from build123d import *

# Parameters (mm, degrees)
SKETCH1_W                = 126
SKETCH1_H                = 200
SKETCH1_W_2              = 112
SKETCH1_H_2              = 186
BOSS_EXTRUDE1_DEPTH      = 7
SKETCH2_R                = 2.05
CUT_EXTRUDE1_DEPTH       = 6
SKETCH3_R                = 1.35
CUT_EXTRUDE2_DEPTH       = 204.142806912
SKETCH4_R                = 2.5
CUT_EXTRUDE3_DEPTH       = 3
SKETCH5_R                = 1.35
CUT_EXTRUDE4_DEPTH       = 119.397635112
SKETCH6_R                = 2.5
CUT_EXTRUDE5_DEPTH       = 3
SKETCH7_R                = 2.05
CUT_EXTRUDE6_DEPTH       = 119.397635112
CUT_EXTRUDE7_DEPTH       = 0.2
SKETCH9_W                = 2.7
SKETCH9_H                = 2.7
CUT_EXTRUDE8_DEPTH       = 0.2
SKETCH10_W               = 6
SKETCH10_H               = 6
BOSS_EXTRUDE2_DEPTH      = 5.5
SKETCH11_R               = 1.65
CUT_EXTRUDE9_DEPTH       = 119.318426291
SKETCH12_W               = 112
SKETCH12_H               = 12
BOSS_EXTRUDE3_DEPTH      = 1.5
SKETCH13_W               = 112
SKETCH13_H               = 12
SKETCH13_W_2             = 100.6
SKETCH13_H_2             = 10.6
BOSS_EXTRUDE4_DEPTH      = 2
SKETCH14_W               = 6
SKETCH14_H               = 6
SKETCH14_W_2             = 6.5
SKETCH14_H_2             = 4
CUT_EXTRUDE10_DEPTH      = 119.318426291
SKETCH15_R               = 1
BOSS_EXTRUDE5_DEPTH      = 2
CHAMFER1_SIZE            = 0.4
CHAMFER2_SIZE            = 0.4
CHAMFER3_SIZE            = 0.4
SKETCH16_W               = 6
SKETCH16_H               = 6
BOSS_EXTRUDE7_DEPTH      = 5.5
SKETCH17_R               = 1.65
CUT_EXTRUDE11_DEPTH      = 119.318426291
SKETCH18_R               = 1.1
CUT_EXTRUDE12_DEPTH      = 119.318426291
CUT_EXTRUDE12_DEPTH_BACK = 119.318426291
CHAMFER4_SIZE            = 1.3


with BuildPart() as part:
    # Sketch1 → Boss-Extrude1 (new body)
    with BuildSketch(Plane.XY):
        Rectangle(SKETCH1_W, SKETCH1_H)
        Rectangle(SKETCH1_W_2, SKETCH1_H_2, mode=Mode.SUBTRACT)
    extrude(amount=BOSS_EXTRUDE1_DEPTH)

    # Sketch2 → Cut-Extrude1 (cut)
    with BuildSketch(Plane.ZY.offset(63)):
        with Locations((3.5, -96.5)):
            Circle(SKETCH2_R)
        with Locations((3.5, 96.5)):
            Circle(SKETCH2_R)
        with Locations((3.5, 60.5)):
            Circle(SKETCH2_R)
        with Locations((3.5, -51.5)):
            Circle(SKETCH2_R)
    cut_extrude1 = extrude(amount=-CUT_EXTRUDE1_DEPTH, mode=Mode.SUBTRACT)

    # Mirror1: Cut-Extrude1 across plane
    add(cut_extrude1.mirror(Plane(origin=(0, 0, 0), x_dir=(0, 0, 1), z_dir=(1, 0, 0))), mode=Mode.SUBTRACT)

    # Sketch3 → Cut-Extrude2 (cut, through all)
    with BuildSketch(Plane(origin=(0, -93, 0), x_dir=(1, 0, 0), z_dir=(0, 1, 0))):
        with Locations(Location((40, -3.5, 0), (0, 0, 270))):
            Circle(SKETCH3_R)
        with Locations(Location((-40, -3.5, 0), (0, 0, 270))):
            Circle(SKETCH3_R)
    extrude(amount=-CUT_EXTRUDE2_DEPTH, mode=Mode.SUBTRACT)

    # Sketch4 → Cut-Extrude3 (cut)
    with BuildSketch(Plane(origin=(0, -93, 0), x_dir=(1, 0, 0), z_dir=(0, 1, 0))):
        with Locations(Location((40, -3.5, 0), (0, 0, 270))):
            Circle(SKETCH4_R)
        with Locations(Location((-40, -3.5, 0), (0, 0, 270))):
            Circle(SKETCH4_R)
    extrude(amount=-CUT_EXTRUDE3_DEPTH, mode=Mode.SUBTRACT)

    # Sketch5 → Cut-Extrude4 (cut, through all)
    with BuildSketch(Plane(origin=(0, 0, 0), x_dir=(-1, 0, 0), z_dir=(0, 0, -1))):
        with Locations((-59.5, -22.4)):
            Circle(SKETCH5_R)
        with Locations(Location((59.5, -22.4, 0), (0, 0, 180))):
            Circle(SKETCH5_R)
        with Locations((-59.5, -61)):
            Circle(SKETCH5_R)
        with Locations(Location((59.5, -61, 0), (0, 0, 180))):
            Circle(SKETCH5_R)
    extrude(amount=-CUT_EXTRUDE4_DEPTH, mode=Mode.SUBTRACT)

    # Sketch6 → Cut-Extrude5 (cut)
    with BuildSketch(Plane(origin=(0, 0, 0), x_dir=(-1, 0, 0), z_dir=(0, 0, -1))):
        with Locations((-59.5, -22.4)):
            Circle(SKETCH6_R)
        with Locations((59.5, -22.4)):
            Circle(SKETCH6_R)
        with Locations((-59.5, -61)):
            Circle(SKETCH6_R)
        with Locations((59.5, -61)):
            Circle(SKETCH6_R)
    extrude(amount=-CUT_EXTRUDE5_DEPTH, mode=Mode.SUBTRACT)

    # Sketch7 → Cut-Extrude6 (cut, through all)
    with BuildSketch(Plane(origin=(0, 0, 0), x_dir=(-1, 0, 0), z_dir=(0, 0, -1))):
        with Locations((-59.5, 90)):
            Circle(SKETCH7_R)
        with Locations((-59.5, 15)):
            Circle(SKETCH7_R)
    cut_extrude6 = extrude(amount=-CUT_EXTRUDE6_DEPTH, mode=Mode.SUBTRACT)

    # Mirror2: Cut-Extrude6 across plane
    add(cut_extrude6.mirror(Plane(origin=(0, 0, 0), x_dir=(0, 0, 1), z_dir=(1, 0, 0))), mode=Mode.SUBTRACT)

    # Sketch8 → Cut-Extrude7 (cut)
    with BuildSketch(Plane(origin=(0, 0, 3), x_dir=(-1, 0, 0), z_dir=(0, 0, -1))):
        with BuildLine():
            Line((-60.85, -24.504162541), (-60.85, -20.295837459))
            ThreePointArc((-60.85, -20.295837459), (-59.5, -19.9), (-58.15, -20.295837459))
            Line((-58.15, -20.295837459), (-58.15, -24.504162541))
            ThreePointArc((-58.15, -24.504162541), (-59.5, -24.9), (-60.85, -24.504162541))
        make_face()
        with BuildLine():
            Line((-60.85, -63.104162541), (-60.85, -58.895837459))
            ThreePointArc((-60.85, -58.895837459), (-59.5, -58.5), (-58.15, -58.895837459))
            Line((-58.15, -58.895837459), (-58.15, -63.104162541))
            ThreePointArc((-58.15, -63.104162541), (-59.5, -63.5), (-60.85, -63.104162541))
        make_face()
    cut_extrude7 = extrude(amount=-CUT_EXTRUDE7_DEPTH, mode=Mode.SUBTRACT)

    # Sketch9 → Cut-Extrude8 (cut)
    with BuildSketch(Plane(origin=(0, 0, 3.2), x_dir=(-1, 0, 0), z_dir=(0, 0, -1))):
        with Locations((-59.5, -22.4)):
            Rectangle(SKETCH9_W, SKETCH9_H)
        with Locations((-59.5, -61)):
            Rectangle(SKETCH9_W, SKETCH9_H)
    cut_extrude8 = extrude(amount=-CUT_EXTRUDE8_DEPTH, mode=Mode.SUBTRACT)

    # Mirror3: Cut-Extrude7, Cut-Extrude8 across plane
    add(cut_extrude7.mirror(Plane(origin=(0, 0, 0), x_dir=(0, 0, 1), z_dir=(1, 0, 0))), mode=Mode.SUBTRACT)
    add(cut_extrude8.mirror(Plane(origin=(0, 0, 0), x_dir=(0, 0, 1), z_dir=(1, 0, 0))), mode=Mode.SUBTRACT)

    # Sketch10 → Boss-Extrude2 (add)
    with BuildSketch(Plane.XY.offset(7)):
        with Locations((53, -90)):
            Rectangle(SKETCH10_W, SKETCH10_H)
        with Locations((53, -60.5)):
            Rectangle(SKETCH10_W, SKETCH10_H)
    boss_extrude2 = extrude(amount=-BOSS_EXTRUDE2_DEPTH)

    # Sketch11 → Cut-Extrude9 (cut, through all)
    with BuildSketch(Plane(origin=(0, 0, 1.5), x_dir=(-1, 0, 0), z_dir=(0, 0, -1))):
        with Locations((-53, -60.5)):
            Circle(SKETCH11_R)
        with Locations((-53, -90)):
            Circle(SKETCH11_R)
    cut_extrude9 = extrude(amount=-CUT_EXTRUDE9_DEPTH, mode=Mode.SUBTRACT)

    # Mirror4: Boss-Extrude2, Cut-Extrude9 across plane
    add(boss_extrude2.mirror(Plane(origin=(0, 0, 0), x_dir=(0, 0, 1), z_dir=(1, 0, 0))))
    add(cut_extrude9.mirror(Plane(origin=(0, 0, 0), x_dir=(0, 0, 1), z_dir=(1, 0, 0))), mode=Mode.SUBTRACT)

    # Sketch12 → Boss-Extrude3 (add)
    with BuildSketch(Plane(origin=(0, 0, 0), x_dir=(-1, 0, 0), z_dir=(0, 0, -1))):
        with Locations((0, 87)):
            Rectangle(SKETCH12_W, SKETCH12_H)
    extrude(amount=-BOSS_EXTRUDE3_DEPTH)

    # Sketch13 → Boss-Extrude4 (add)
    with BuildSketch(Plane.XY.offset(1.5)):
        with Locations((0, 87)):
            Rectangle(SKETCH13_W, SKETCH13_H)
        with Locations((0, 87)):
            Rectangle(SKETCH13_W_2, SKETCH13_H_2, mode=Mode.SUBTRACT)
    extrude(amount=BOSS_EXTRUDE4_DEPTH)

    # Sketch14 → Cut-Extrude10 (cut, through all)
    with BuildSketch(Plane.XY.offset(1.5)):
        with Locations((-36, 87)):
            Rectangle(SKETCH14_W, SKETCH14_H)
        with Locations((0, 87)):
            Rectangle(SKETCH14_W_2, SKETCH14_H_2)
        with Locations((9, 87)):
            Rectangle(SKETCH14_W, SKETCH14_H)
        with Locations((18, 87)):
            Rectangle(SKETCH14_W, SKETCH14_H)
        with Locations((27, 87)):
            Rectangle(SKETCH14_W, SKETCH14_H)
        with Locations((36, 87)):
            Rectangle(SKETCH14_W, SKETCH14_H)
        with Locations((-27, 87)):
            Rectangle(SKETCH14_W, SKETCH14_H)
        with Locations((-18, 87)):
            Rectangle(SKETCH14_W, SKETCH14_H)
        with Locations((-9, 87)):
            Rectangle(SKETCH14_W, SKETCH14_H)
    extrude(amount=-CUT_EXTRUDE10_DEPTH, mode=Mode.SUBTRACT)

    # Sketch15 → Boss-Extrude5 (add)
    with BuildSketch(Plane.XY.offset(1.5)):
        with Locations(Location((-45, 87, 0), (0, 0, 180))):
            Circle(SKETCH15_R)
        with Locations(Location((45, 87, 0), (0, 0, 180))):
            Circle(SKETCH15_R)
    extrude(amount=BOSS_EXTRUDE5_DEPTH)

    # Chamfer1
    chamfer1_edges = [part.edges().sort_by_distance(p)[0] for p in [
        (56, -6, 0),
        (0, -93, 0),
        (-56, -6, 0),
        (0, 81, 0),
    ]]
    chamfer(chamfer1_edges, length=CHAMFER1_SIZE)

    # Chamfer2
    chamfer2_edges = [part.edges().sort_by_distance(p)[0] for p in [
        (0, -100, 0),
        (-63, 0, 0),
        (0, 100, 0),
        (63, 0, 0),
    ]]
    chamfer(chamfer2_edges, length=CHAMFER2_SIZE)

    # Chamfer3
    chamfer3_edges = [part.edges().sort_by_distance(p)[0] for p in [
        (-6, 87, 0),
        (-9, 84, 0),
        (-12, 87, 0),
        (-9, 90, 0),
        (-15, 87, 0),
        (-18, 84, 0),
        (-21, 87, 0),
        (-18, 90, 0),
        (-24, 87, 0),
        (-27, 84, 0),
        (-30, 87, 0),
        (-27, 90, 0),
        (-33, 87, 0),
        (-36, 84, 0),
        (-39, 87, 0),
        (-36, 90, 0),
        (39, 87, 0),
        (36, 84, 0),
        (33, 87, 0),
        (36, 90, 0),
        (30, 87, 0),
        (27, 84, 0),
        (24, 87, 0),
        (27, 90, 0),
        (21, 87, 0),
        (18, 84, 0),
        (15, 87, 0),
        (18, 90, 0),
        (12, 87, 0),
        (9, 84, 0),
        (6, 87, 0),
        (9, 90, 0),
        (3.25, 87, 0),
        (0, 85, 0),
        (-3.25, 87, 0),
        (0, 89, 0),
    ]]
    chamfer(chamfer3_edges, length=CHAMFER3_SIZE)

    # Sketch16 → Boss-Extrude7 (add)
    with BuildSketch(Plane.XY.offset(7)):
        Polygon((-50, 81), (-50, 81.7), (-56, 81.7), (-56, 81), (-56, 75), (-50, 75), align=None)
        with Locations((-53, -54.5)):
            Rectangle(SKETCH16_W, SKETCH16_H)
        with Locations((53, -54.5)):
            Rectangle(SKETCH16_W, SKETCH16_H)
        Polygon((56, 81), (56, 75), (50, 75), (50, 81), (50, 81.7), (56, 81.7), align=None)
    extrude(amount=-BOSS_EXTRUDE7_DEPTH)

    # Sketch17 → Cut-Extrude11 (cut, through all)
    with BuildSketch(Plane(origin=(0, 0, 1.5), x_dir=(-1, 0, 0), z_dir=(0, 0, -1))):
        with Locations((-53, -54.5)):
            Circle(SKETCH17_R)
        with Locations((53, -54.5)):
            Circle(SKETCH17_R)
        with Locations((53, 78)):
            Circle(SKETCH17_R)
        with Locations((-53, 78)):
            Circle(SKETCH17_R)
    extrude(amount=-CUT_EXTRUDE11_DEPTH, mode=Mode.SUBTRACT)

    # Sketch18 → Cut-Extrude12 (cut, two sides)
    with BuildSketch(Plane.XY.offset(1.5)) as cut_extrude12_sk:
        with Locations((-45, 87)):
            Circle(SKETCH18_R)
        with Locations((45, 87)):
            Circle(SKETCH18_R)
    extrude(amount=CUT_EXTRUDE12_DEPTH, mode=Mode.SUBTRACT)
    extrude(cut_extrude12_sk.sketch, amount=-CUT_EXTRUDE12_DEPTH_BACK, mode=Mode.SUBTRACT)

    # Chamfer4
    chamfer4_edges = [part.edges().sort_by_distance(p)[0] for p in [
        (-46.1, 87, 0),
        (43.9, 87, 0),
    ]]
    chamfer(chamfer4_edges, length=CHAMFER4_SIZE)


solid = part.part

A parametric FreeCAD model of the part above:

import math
import FreeCAD as App
import Part
import Sketcher
from FreeCAD import Vector
Q = App.Units.Quantity


def edges_at(feature, points):
    """Names of the edges that pass closest to the given points."""
    edges = feature.Shape.Edges
    near = lambda p: min(range(len(edges)), key=lambda i: edges[i].distToShape(Part.Vertex(*p))[0])
    return sorted({f"Edge{near(p) + 1}" for p in points})


def add_polygon(sketch, points):
    """Adds a closed chain of lines whose ends are joined by coincident constraints."""
    first, n = sketch.GeometryCount, len(points)
    for a, b in zip(points, points[1:] + points[:1]):
        sketch.addGeometry(Part.LineSegment(App.Vector(*a, 0), App.Vector(*b, 0)), False)
    for i in range(n):
        sketch.addConstraint(Sketcher.Constraint("Coincident", first + i, 2, first + (i + 1) % n, 1))

doc = App.newDocument("Part")
body = doc.addObject("PartDesign::Body", "Body")

sketch1 = doc.addObject("Sketcher::SketchObject", "Sketch")
body.addObject(sketch1)
sketch1.AttachmentSupport = (doc.XY_Plane, [""])
sketch1.MapMode = "FlatFace"
add_polygon(sketch1, [(-63, 100), (-63, -100), (63, -100), (63, 100)])
add_polygon(sketch1, [(56, -93), (-56, -93), (-56, 93), (56, 93)])
sketch1.addConstraint([
    Sketcher.Constraint("Vertical", 0),
    Sketcher.Constraint("Horizontal", 1),
    Sketcher.Constraint("Vertical", 2),
    Sketcher.Constraint("Horizontal", 3),
    Sketcher.Constraint("Horizontal", 4),
    Sketcher.Constraint("Vertical", 5),
    Sketcher.Constraint("Horizontal", 6),
    Sketcher.Constraint("Vertical", 7),
    Sketcher.Constraint("Symmetric", 0, 2, 2, 2, -1, 1),
    Sketcher.Constraint("Symmetric", 4, 2, 6, 2, -1, 1),
    Sketcher.Constraint("DistanceX", 1, 1, 1, 2, Q("126 mm")),
    Sketcher.Constraint("DistanceX", 4, 2, 4, 1, Q("112 mm")),
    Sketcher.Constraint("DistanceY", 0, 2, 0, 1, Q("200 mm")),
    Sketcher.Constraint("DistanceY", 5, 1, 5, 2, Q("186 mm")),
])
pad1 = doc.addObject("PartDesign::Pad", "Pad")
body.addObject(pad1)
pad1.Profile = sketch1
pad1.Length = 7

sketch2 = doc.addObject("Sketcher::SketchObject", "Sketch001")
body.addObject(sketch2)
sketch2.AttachmentSupport = (doc.YZ_Plane, [""])
sketch2.MapMode = "FlatFace"
sketch2.AttachmentOffset = App.Placement(Vector(0, 0, -63), App.Rotation())
sketch2.addGeometry([
    Part.Circle(Vector(-96.5, 3.5, 0), Vector(0, 0, 1), 2.05),
    Part.Circle(Vector(96.5, 3.5, 0), Vector(0, 0, 1), 2.05),
    Part.Circle(Vector(60.5, 3.5, 0), Vector(0, 0, 1), 2.05),
    Part.Circle(Vector(-51.5, 3.5, 0), Vector(0, 0, 1), 2.05),
], False)
sketch2.addConstraint([
    Sketcher.Constraint("Equal", 0, 1),
    Sketcher.Constraint("Equal", 1, 2),
    Sketcher.Constraint("Equal", 2, 3),
    Sketcher.Constraint("Symmetric", 0, 3, 1, 3, -2),
    Sketcher.Constraint("Horizontal", 1, 3, 2, 3),
    Sketcher.Constraint("Horizontal", 2, 3, 3, 3),
    Sketcher.Constraint("Diameter", 0, Q("4.1 mm")),
    Sketcher.Constraint("DistanceX", 0, 3, 1, 3, Q("193 mm")),
    Sketcher.Constraint("DistanceX", 2, 3, 1, 3, Q("36 mm")),
    Sketcher.Constraint("DistanceX", 0, 3, 3, 3, Q("45 mm")),
    Sketcher.Constraint("DistanceY", -1, 1, 0, 3, Q("3.5 mm")),
])
pocket1 = doc.addObject("PartDesign::Pocket", "Pocket")
body.addObject(pocket1)
pocket1.Profile = sketch2
pocket1.Length = 6
pocket1.Reversed = True
doc.recompute()

mirrored = doc.addObject("PartDesign::Mirrored", "Mirrored")
body.addObject(mirrored)
mirrored.Originals = [pocket1]
mirrored.MirrorPlane = (doc.YZ_Plane, [""])
body.Tip = mirrored

sketch3 = doc.addObject("Sketcher::SketchObject", "Sketch002")
body.addObject(sketch3)
sketch3.AttachmentSupport = (doc.XZ_Plane, [""])
sketch3.MapMode = "FlatFace"
sketch3.AttachmentOffset = App.Placement(Vector(0, 0, 93), App.Rotation())
sketch3.addGeometry([
    Part.Circle(Vector(40, 3.5, 0), Vector(0, 0, 1), 1.35),
    Part.Circle(Vector(-40, 3.5, 0), Vector(0, 0, 1), 1.35),
], False)
sketch3.addConstraint([
    Sketcher.Constraint("Equal", 0, 1),
    Sketcher.Constraint("Symmetric", 0, 3, 1, 3, -2),
    Sketcher.Constraint("Diameter", 0, Q("2.7 mm")),
    Sketcher.Constraint("DistanceX", -1, 1, 0, 3, Q("40 mm")),
    Sketcher.Constraint("DistanceY", -1, 1, 0, 3, Q("3.5 mm")),
])
pocket2 = doc.addObject("PartDesign::Pocket", "Pocket001")
body.addObject(pocket2)
pocket2.Profile = sketch3
pocket2.Type = "ThroughAll"
pocket2.Reversed = True

sketch4 = doc.addObject("Sketcher::SketchObject", "Sketch003")
body.addObject(sketch4)
sketch4.AttachmentSupport = (doc.XZ_Plane, [""])
sketch4.MapMode = "FlatFace"
sketch4.AttachmentOffset = App.Placement(Vector(0, 0, 93), App.Rotation())
sketch4.addGeometry([
    Part.Circle(Vector(40, 3.5, 0), Vector(0, 0, 1), 2.5),
    Part.Circle(Vector(-40, 3.5, 0), Vector(0, 0, 1), 2.5),
], False)
sketch4.addConstraint([
    Sketcher.Constraint("Equal", 0, 1),
    Sketcher.Constraint("Symmetric", 0, 3, 1, 3, -2),
    Sketcher.Constraint("Diameter", 0, Q("5 mm")),
    Sketcher.Constraint("DistanceX", -1, 1, 0, 3, Q("40 mm")),
    Sketcher.Constraint("DistanceY", -1, 1, 0, 3, Q("3.5 mm")),
])
pocket3 = doc.addObject("PartDesign::Pocket", "Pocket002")
body.addObject(pocket3)
pocket3.Profile = sketch4
pocket3.Length = 3
pocket3.Reversed = True

sketch5 = doc.addObject("Sketcher::SketchObject", "Sketch004")
body.addObject(sketch5)
sketch5.AttachmentSupport = (doc.XY_Plane, [""])
sketch5.MapMode = "FlatFace"
sketch5.addGeometry([
    Part.Circle(Vector(59.5, -22.4, 0), Vector(0, 0, 1), 1.35),
    Part.Circle(Vector(-59.5, -22.4, 0), Vector(0, 0, 1), 1.35),
    Part.Circle(Vector(59.5, -61, 0), Vector(0, 0, 1), 1.35),
    Part.Circle(Vector(-59.5, -61, 0), Vector(0, 0, 1), 1.35),
], False)
sketch5.addConstraint([
    Sketcher.Constraint("Equal", 0, 1),
    Sketcher.Constraint("Equal", 1, 2),
    Sketcher.Constraint("Equal", 2, 3),
    Sketcher.Constraint("Symmetric", 0, 3, 1, 3, -2),
    Sketcher.Constraint("Symmetric", 2, 3, 3, 3, -2),
    Sketcher.Constraint("Vertical", 0, 3, 2, 3),
    Sketcher.Constraint("Diameter", 0, Q("2.7 mm")),
    Sketcher.Constraint("DistanceY", 2, 3, -1, 1, Q("61 mm")),
    Sketcher.Constraint("DistanceX", 1, 3, 0, 3, Q("119 mm")),
    Sketcher.Constraint("DistanceY", 0, 3, -1, 1, Q("22.4 mm")),
])
pocket4 = doc.addObject("PartDesign::Pocket", "Pocket003")
body.addObject(pocket4)
pocket4.Profile = sketch5
pocket4.Type = "ThroughAll"
pocket4.Reversed = True

sketch6 = doc.addObject("Sketcher::SketchObject", "Sketch005")
body.addObject(sketch6)
sketch6.AttachmentSupport = (doc.XY_Plane, [""])
sketch6.MapMode = "FlatFace"
sketch6.addGeometry([
    Part.Circle(Vector(59.5, -22.4, 0), Vector(0, 0, 1), 2.5),
    Part.Circle(Vector(-59.5, -22.4, 0), Vector(0, 0, 1), 2.5),
    Part.Circle(Vector(59.5, -61, 0), Vector(0, 0, 1), 2.5),
    Part.Circle(Vector(-59.5, -61, 0), Vector(0, 0, 1), 2.5),
], False)
sketch6.addConstraint([
    Sketcher.Constraint("Equal", 0, 1),
    Sketcher.Constraint("Equal", 1, 2),
    Sketcher.Constraint("Equal", 2, 3),
    Sketcher.Constraint("Symmetric", 0, 3, 1, 3, -2),
    Sketcher.Constraint("Symmetric", 2, 3, 3, 3, -2),
    Sketcher.Constraint("Vertical", 0, 3, 2, 3),
    Sketcher.Constraint("Diameter", 0, Q("5 mm")),
    Sketcher.Constraint("DistanceY", 2, 3, -1, 1, Q("61 mm")),
    Sketcher.Constraint("DistanceX", 1, 3, 0, 3, Q("119 mm")),
    Sketcher.Constraint("DistanceY", 0, 3, -1, 1, Q("22.4 mm")),
])
pocket5 = doc.addObject("PartDesign::Pocket", "Pocket004")
body.addObject(pocket5)
pocket5.Profile = sketch6
pocket5.Length = 3
pocket5.Reversed = True

sketch7 = doc.addObject("Sketcher::SketchObject", "Sketch006")
body.addObject(sketch7)
sketch7.AttachmentSupport = (doc.XY_Plane, [""])
sketch7.MapMode = "FlatFace"
sketch7.addGeometry([
    Part.Circle(Vector(59.5, 90, 0), Vector(0, 0, 1), 2.05),
    Part.Circle(Vector(59.5, 15, 0), Vector(0, 0, 1), 2.05),
], False)
sketch7.addConstraint([
    Sketcher.Constraint("Equal", 0, 1),
    Sketcher.Constraint("Vertical", 0, 3, 1, 3),
    Sketcher.Constraint("Diameter", 0, Q("4.1 mm")),
    Sketcher.Constraint("DistanceY", -1, 1, 0, 3, Q("90 mm")),
    Sketcher.Constraint("DistanceY", -1, 1, 1, 3, Q("15 mm")),
    Sketcher.Constraint("DistanceX", -1, 1, 0, 3, Q("59.5 mm")),
])
pocket6 = doc.addObject("PartDesign::Pocket", "Pocket005")
body.addObject(pocket6)
pocket6.Profile = sketch7
pocket6.Type = "ThroughAll"
pocket6.Reversed = True
doc.recompute()

mirrored2 = doc.addObject("PartDesign::Mirrored", "Mirrored001")
body.addObject(mirrored2)
mirrored2.Originals = [pocket6]
mirrored2.MirrorPlane = (doc.YZ_Plane, [""])
body.Tip = mirrored2

sketch8 = doc.addObject("Sketcher::SketchObject", "Sketch007")
body.addObject(sketch8)
sketch8.AttachmentSupport = (doc.XY_Plane, [""])
sketch8.MapMode = "FlatFace"
sketch8.AttachmentOffset = App.Placement(Vector(0, 0, 3), App.Rotation())
sketch8.addGeometry([
    Part.LineSegment(Vector(60.85, -20.295837, 0), Vector(60.85, -24.504163, 0)),
    Part.ArcOfCircle(Part.Circle(Vector(59.5, -22.4, 0), Vector(0, 0, 1), 2.5), math.radians(-122.683639), math.radians(-57.316361)),
    Part.LineSegment(Vector(58.15, -24.504163, 0), Vector(58.15, -20.295837, 0)),
    Part.ArcOfCircle(Part.Circle(Vector(59.5, -22.4, 0), Vector(0, 0, 1), 2.5), math.radians(57.316361), math.radians(122.683639)),
    Part.LineSegment(Vector(60.85, -58.895837, 0), Vector(60.85, -63.104163, 0)),
    Part.ArcOfCircle(Part.Circle(Vector(59.5, -61, 0), Vector(0, 0, 1), 2.5), math.radians(-122.683639), math.radians(-57.316361)),
    Part.LineSegment(Vector(58.15, -63.104163, 0), Vector(58.15, -58.895837, 0)),
    Part.ArcOfCircle(Part.Circle(Vector(59.5, -61, 0), Vector(0, 0, 1), 2.5), math.radians(57.316361), math.radians(122.683639)),
], False)
sketch8.addConstraint([
    Sketcher.Constraint("Coincident", 0, 2, 1, 2),
    Sketcher.Constraint("Coincident", 1, 1, 2, 1),
    Sketcher.Constraint("Coincident", 2, 2, 3, 2),
    Sketcher.Constraint("Coincident", 3, 1, 0, 1),
    Sketcher.Constraint("Coincident", 4, 2, 5, 2),
    Sketcher.Constraint("Coincident", 5, 1, 6, 1),
    Sketcher.Constraint("Coincident", 6, 2, 7, 2),
    Sketcher.Constraint("Coincident", 7, 1, 4, 1),
    Sketcher.Constraint("Vertical", 0),
    Sketcher.Constraint("Vertical", 2),
    Sketcher.Constraint("Vertical", 4),
    Sketcher.Constraint("Vertical", 6),
    Sketcher.Constraint("Coincident", 3, 3, 1, 3),
    Sketcher.Constraint("Coincident", 7, 3, 5, 3),
    Sketcher.Constraint("Equal", 1, 3),
    Sketcher.Constraint("Equal", 3, 5),
    Sketcher.Constraint("Equal", 5, 7),
    Sketcher.Constraint("Horizontal", 0, 2, 1, 1),
    Sketcher.Constraint("Horizontal", 4, 2, 5, 1),
    Sketcher.Constraint("Vertical", 3, 3, 5, 3),
    Sketcher.Constraint("Vertical", 3, 1, 4, 2),
    Sketcher.Constraint("Radius", 1, Q("2.5 mm")),
    Sketcher.Constraint("DistanceY", 5, 3, -1, 1, Q("61 mm")),
    Sketcher.Constraint("DistanceX", -1, 1, 1, 3, Q("59.5 mm")),
    Sketcher.Constraint("DistanceY", 1, 3, -1, 1, Q("22.4 mm")),
    Sketcher.Constraint("DistanceX", 1, 1, 0, 2, Q("2.7 mm")),
])
pocket7 = doc.addObject("PartDesign::Pocket", "Pocket006")
body.addObject(pocket7)
pocket7.Profile = sketch8
pocket7.Length = 0.2
pocket7.Reversed = True

sketch9 = doc.addObject("Sketcher::SketchObject", "Sketch008")
body.addObject(sketch9)
sketch9.AttachmentSupport = (doc.XY_Plane, [""])
sketch9.MapMode = "FlatFace"
sketch9.AttachmentOffset = App.Placement(Vector(0, 0, 3.2), App.Rotation())
add_polygon(sketch9, [(60.85, -21.05), (60.85, -23.75), (58.15, -23.75), (58.15, -21.05)])
add_polygon(sketch9, [(60.85, -59.65), (60.85, -62.35), (58.15, -62.35), (58.15, -59.65)])
sketch9.addConstraint([
    Sketcher.Constraint("Vertical", 0),
    Sketcher.Constraint("Horizontal", 1),
    Sketcher.Constraint("Vertical", 2),
    Sketcher.Constraint("Horizontal", 3),
    Sketcher.Constraint("Vertical", 4),
    Sketcher.Constraint("Horizontal", 5),
    Sketcher.Constraint("Vertical", 6),
    Sketcher.Constraint("Horizontal", 7),
    Sketcher.Constraint("Vertical", 3, 2, 4, 2),
    Sketcher.Constraint("Vertical", 2, 2, 5, 2),
    Sketcher.Constraint("Equal", 7, 0),
    Sketcher.Constraint("Equal", 2, 4),
    Sketcher.Constraint("DistanceX", 1, 2, 1, 1, Q("2.7 mm")),
    Sketcher.Constraint("DistanceY", 4, 2, 0, 2, Q("38.6 mm")),
    Sketcher.Constraint("DistanceX", -1, 1, 0, 2, Q("60.85 mm")),
    Sketcher.Constraint("DistanceY", 0, 2, -1, 1, Q("23.75 mm")),
])
pocket8 = doc.addObject("PartDesign::Pocket", "Pocket007")
body.addObject(pocket8)
pocket8.Profile = sketch9
pocket8.Length = 0.2
pocket8.Reversed = True
doc.recompute()

mirrored3 = doc.addObject("PartDesign::Mirrored", "Mirrored002")
body.addObject(mirrored3)
mirrored3.Originals = [pocket7, pocket8]
mirrored3.MirrorPlane = (doc.YZ_Plane, [""])
body.Tip = mirrored3

sketch10 = doc.addObject("Sketcher::SketchObject", "Sketch009")
body.addObject(sketch10)
sketch10.AttachmentSupport = (doc.XY_Plane, [""])
sketch10.MapMode = "FlatFace"
sketch10.AttachmentOffset = App.Placement(Vector(0, 0, 7), App.Rotation())
add_polygon(sketch10, [(50, -87), (50, -93), (56, -93), (56, -87)])
add_polygon(sketch10, [(50, -57.5), (50, -63.5), (56, -63.5), (56, -57.5)])
sketch10.addConstraint([
    Sketcher.Constraint("Vertical", 0),
    Sketcher.Constraint("Horizontal", 1),
    Sketcher.Constraint("Vertical", 2),
    Sketcher.Constraint("Horizontal", 3),
    Sketcher.Constraint("Vertical", 4),
    Sketcher.Constraint("Horizontal", 5),
    Sketcher.Constraint("Vertical", 6),
    Sketcher.Constraint("Horizontal", 7),
    Sketcher.Constraint("Vertical", 3, 2, 4, 2),
    Sketcher.Constraint("Vertical", 2, 2, 5, 2),
    Sketcher.Constraint("Equal", 7, 0),
    Sketcher.Constraint("Equal", 2, 4),
    Sketcher.Constraint("DistanceX", 1, 1, 1, 2, Q("6 mm")),
    Sketcher.Constraint("DistanceX", -1, 1, 0, 2, Q("50 mm")),
    Sketcher.Constraint("DistanceY", 0, 2, -1, 1, Q("93 mm")),
    Sketcher.Constraint("DistanceY", 4, 2, -1, 1, Q("63.5 mm")),
])
pad2 = doc.addObject("PartDesign::Pad", "Pad001")
body.addObject(pad2)
pad2.Profile = sketch10
pad2.Length = 5.5
pad2.Reversed = True

sketch11 = doc.addObject("Sketcher::SketchObject", "Sketch010")
body.addObject(sketch11)
sketch11.AttachmentSupport = (doc.XY_Plane, [""])
sketch11.MapMode = "FlatFace"
sketch11.AttachmentOffset = App.Placement(Vector(0, 0, 1.5), App.Rotation())
sketch11.addGeometry([
    Part.Circle(Vector(53, -60.5, 0), Vector(0, 0, 1), 1.65),
    Part.Circle(Vector(53, -90, 0), Vector(0, 0, 1), 1.65),
], False)
sketch11.addConstraint([
    Sketcher.Constraint("Equal", 0, 1),
    Sketcher.Constraint("Vertical", 0, 3, 1, 3),
    Sketcher.Constraint("Diameter", 0, Q("3.3 mm")),
    Sketcher.Constraint("DistanceX", -1, 1, 0, 3, Q("53 mm")),
    Sketcher.Constraint("DistanceY", 1, 3, -1, 1, Q("90 mm")),
    Sketcher.Constraint("DistanceY", 0, 3, -1, 1, Q("60.5 mm")),
])
pocket9 = doc.addObject("PartDesign::Pocket", "Pocket008")
body.addObject(pocket9)
pocket9.Profile = sketch11
pocket9.Type = "ThroughAll"
pocket9.Reversed = True
doc.recompute()

mirrored4 = doc.addObject("PartDesign::Mirrored", "Mirrored003")
body.addObject(mirrored4)
mirrored4.Originals = [pad2, pocket9]
mirrored4.MirrorPlane = (doc.YZ_Plane, [""])
body.Tip = mirrored4

sketch12 = doc.addObject("Sketcher::SketchObject", "Sketch011")
body.addObject(sketch12)
sketch12.AttachmentSupport = (doc.XY_Plane, [""])
sketch12.MapMode = "FlatFace"
add_polygon(sketch12, [(56, 93), (56, 81), (-56, 81), (-56, 93)])
sketch12.addConstraint([
    Sketcher.Constraint("Vertical", 0),
    Sketcher.Constraint("Horizontal", 1),
    Sketcher.Constraint("Vertical", 2),
    Sketcher.Constraint("Horizontal", 3),
    Sketcher.Constraint("DistanceX", 1, 2, 1, 1, Q("112 mm")),
    Sketcher.Constraint("DistanceY", 0, 2, 0, 1, Q("12 mm")),
    Sketcher.Constraint("DistanceX", -1, 1, 0, 2, Q("56 mm")),
    Sketcher.Constraint("DistanceY", -1, 1, 0, 2, Q("81 mm")),
])
pad3 = doc.addObject("PartDesign::Pad", "Pad002")
body.addObject(pad3)
pad3.Profile = sketch12
pad3.Length = 1.5

sketch13 = doc.addObject("Sketcher::SketchObject", "Sketch012")
body.addObject(sketch13)
sketch13.AttachmentSupport = (doc.XY_Plane, [""])
sketch13.MapMode = "FlatFace"
sketch13.AttachmentOffset = App.Placement(Vector(0, 0, 1.5), App.Rotation())
add_polygon(sketch13, [(-56, 93), (-56, 81), (56, 81), (56, 93)])
add_polygon(sketch13, [(50.3, 81.7), (-50.3, 81.7), (-50.3, 92.3), (50.3, 92.3)])
sketch13.addConstraint([
    Sketcher.Constraint("Vertical", 0),
    Sketcher.Constraint("Horizontal", 1),
    Sketcher.Constraint("Vertical", 2),
    Sketcher.Constraint("Horizontal", 3),
    Sketcher.Constraint("Horizontal", 4),
    Sketcher.Constraint("Vertical", 5),
    Sketcher.Constraint("Horizontal", 6),
    Sketcher.Constraint("Vertical", 7),
    Sketcher.Constraint("DistanceX", 1, 1, 1, 2, Q("112 mm")),
    Sketcher.Constraint("DistanceY", 0, 2, 0, 1, Q("12 mm")),
    Sketcher.Constraint("DistanceX", 4, 2, 4, 1, Q("100.6 mm")),
    Sketcher.Constraint("DistanceY", 5, 1, 5, 2, Q("10.6 mm")),
    Sketcher.Constraint("DistanceX", 0, 2, -1, 1, Q("56 mm")),
    Sketcher.Constraint("DistanceY", -1, 1, 0, 2, Q("81 mm")),
    Sketcher.Constraint("DistanceX", 4, 2, -1, 1, Q("50.3 mm")),
    Sketcher.Constraint("DistanceY", -1, 1, 4, 2, Q("81.7 mm")),
])
pad4 = doc.addObject("PartDesign::Pad", "Pad003")
body.addObject(pad4)
pad4.Profile = sketch13
pad4.Length = 2

sketch14 = doc.addObject("Sketcher::SketchObject", "Sketch013")
body.addObject(sketch14)
sketch14.AttachmentSupport = (doc.XY_Plane, [""])
sketch14.MapMode = "FlatFace"
sketch14.AttachmentOffset = App.Placement(Vector(0, 0, 1.5), App.Rotation())
add_polygon(sketch14, [(-39, 90), (-39, 84), (-33, 84), (-33, 90)])
add_polygon(sketch14, [(-3.25, 89), (-3.25, 85), (3.25, 85), (3.25, 89)])
add_polygon(sketch14, [(6, 90), (6, 84), (12, 84), (12, 90)])
add_polygon(sketch14, [(15, 90), (15, 84), (21, 84), (21, 90)])
add_polygon(sketch14, [(24, 90), (24, 84), (30, 84), (30, 90)])
add_polygon(sketch14, [(33, 90), (33, 84), (39, 84), (39, 90)])
add_polygon(sketch14, [(-30, 90), (-30, 84), (-24, 84), (-24, 90)])
add_polygon(sketch14, [(-21, 90), (-21, 84), (-15, 84), (-15, 90)])
add_polygon(sketch14, [(-12, 90), (-12, 84), (-6, 84), (-6, 90)])
sketch14.addConstraint([
    Sketcher.Constraint("Vertical", 0),
    Sketcher.Constraint("Horizontal", 1),
    Sketcher.Constraint("Vertical", 2),
    Sketcher.Constraint("Horizontal", 3),
    Sketcher.Constraint("Vertical", 4),
    Sketcher.Constraint("Horizontal", 5),
    Sketcher.Constraint("Vertical", 6),
    Sketcher.Constraint("Horizontal", 7),
    Sketcher.Constraint("Vertical", 8),
    Sketcher.Constraint("Horizontal", 9),
    Sketcher.Constraint("Vertical", 10),
    Sketcher.Constraint("Horizontal", 11),
    Sketcher.Constraint("Vertical", 12),
    Sketcher.Constraint("Horizontal", 13),
    Sketcher.Constraint("Vertical", 14),
    Sketcher.Constraint("Horizontal", 15),
    Sketcher.Constraint("Vertical", 16),
    Sketcher.Constraint("Horizontal", 17),
    Sketcher.Constraint("Vertical", 18),
    Sketcher.Constraint("Horizontal", 19),
    Sketcher.Constraint("Vertical", 20),
    Sketcher.Constraint("Horizontal", 21),
    Sketcher.Constraint("Vertical", 22),
    Sketcher.Constraint("Horizontal", 23),
    Sketcher.Constraint("Vertical", 24),
    Sketcher.Constraint("Horizontal", 25),
    Sketcher.Constraint("Vertical", 26),
    Sketcher.Constraint("Horizontal", 27),
    Sketcher.Constraint("Vertical", 28),
    Sketcher.Constraint("Horizontal", 29),
    Sketcher.Constraint("Vertical", 30),
    Sketcher.Constraint("Horizontal", 31),
    Sketcher.Constraint("Vertical", 32),
    Sketcher.Constraint("Horizontal", 33),
    Sketcher.Constraint("Vertical", 34),
    Sketcher.Constraint("Horizontal", 35),
    Sketcher.Constraint("Symmetric", 1, 2, 20, 2, -2),
    Sketcher.Constraint("Symmetric", 3, 2, 22, 2, -2),
    Sketcher.Constraint("Symmetric", 17, 2, 24, 2, -2),
    Sketcher.Constraint("Symmetric", 19, 2, 26, 2, -2),
    Sketcher.Constraint("Symmetric", 13, 2, 28, 2, -2),
    Sketcher.Constraint("Symmetric", 15, 2, 30, 2, -2),
    Sketcher.Constraint("Symmetric", 9, 2, 32, 2, -2),
    Sketcher.Constraint("Symmetric", 11, 2, 34, 2, -2),
    Sketcher.Constraint("Horizontal", 1, 2, 8, 2),
    Sketcher.Constraint("Horizontal", 3, 2, 10, 2),
    Sketcher.Constraint("Horizontal", 9, 2, 12, 2),
    Sketcher.Constraint("Horizontal", 11, 2, 14, 2),
    Sketcher.Constraint("Horizontal", 13, 2, 16, 2),
    Sketcher.Constraint("Horizontal", 15, 2, 18, 2),
    Sketcher.Constraint("Equal", 3, 9),
    Sketcher.Constraint("Equal", 11, 13),
    Sketcher.Constraint("Equal", 15, 17),
    Sketcher.Constraint("Equal", 35, 0),
    Sketcher.Constraint("DistanceX", 1, 1, 1, 2, Q("6 mm")),
    Sketcher.Constraint("DistanceY", 4, 2, 4, 1, Q("4 mm")),
    Sketcher.Constraint("DistanceX", 5, 1, 5, 2, Q("6.5 mm")),
    Sketcher.Constraint("DistanceX", 0, 2, -1, 1, Q("39 mm")),
    Sketcher.Constraint("DistanceY", -1, 1, 0, 2, Q("84 mm")),
    Sketcher.Constraint("DistanceY", -1, 1, 4, 2, Q("85 mm")),
    Sketcher.Constraint("DistanceX", -1, 1, 8, 2, Q("6 mm")),
    Sketcher.Constraint("DistanceX", -1, 1, 12, 2, Q("15 mm")),
    Sketcher.Constraint("DistanceX", -1, 1, 16, 2, Q("24 mm")),
    Sketcher.Constraint("DistanceX", 4, 2, -1, 1, Q("3.25 mm")),
])
pocket10 = doc.addObject("PartDesign::Pocket", "Pocket009")
body.addObject(pocket10)
pocket10.Profile = sketch14
pocket10.Type = "ThroughAll"

sketch15 = doc.addObject("Sketcher::SketchObject", "Sketch014")
body.addObject(sketch15)
sketch15.AttachmentSupport = (doc.XY_Plane, [""])
sketch15.MapMode = "FlatFace"
sketch15.AttachmentOffset = App.Placement(Vector(0, 0, 1.5), App.Rotation())
sketch15.addGeometry([
    Part.Circle(Vector(-45, 87, 0), Vector(0, 0, 1), 1),
    Part.Circle(Vector(45, 87, 0), Vector(0, 0, 1), 1),
], False)
sketch15.addConstraint([
    Sketcher.Constraint("Equal", 0, 1),
    Sketcher.Constraint("Symmetric", 0, 3, 1, 3, -2),
    Sketcher.Constraint("Diameter", 0, Q("2 mm")),
    Sketcher.Constraint("DistanceX", 0, 3, -1, 1, Q("45 mm")),
    Sketcher.Constraint("DistanceY", -1, 1, 0, 3, Q("87 mm")),
])
pad5 = doc.addObject("PartDesign::Pad", "Pad004")
body.addObject(pad5)
pad5.Profile = sketch15
pad5.Length = 2
doc.recompute()

chamfer = doc.addObject("PartDesign::Chamfer", "Chamfer")
body.addObject(chamfer)
chamfer.Base = (pad5, edges_at(pad5, [
    (56, -6, 0),
    (0, -93, 0),
    (-56, -6, 0),
    (0, 81, 0),
]))
chamfer.Size = 0.4
doc.recompute()

chamfer2 = doc.addObject("PartDesign::Chamfer", "Chamfer001")
body.addObject(chamfer2)
chamfer2.Base = (chamfer, edges_at(chamfer, [
    (0, -100, 0),
    (-63, 0, 0),
    (0, 100, 0),
    (63, 0, 0),
]))
chamfer2.Size = 0.4
doc.recompute()

chamfer3 = doc.addObject("PartDesign::Chamfer", "Chamfer002")
body.addObject(chamfer3)
chamfer3.Base = (chamfer2, edges_at(chamfer2, [
    (-6, 87, 0),
    (-9, 84, 0),
    (-12, 87, 0),
    (-9, 90, 0),
    (-15, 87, 0),
    (-18, 84, 0),
    (-21, 87, 0),
    (-18, 90, 0),
    (-24, 87, 0),
    (-27, 84, 0),
    (-30, 87, 0),
    (-27, 90, 0),
    (-33, 87, 0),
    (-36, 84, 0),
    (-39, 87, 0),
    (-36, 90, 0),
    (39, 87, 0),
    (36, 84, 0),
    (33, 87, 0),
    (36, 90, 0),
    (30, 87, 0),
    (27, 84, 0),
    (24, 87, 0),
    (27, 90, 0),
    (21, 87, 0),
    (18, 84, 0),
    (15, 87, 0),
    (18, 90, 0),
    (12, 87, 0),
    (9, 84, 0),
    (6, 87, 0),
    (9, 90, 0),
    (3.25, 87, 0),
    (0, 85, 0),
    (-3.25, 87, 0),
    (0, 89, 0),
]))
chamfer3.Size = 0.4

sketch16 = doc.addObject("Sketcher::SketchObject", "Sketch015")
body.addObject(sketch16)
sketch16.AttachmentSupport = (doc.XY_Plane, [""])
sketch16.MapMode = "FlatFace"
sketch16.AttachmentOffset = App.Placement(Vector(0, 0, 7), App.Rotation())
add_polygon(sketch16, [(-50, 81.7), (-56, 81.7), (-56, 75), (-50, 75)])
add_polygon(sketch16, [(-56, -51.5), (-56, -57.5), (-50, -57.5), (-50, -51.5)])
add_polygon(sketch16, [(50, -51.5), (50, -57.5), (56, -57.5), (56, -51.5)])
add_polygon(sketch16, [(56, 75), (56, 81.7), (50, 81.7), (50, 75)])
sketch16.addConstraint([
    Sketcher.Constraint("Horizontal", 0),
    Sketcher.Constraint("Vertical", 1),
    Sketcher.Constraint("Horizontal", 2),
    Sketcher.Constraint("Vertical", 3),
    Sketcher.Constraint("Vertical", 4),
    Sketcher.Constraint("Horizontal", 5),
    Sketcher.Constraint("Vertical", 6),
    Sketcher.Constraint("Horizontal", 7),
    Sketcher.Constraint("Vertical", 8),
    Sketcher.Constraint("Horizontal", 9),
    Sketcher.Constraint("Vertical", 10),
    Sketcher.Constraint("Horizontal", 11),
    Sketcher.Constraint("Vertical", 12),
    Sketcher.Constraint("Horizontal", 13),
    Sketcher.Constraint("Vertical", 14),
    Sketcher.Constraint("Horizontal", 15),
    Sketcher.Constraint("Symmetric", 5, 2, 8, 2, -2),
    Sketcher.Constraint("Symmetric", 7, 2, 10, 2, -2),
    Sketcher.Constraint("Symmetric", 0, 2, 12, 2, -2),
    Sketcher.Constraint("Symmetric", 2, 2, 14, 2, -2),
    Sketcher.Constraint("Vertical", 1, 2, 4, 2),
    Sketcher.Constraint("Vertical", 3, 2, 5, 2),
    Sketcher.Constraint("Equal", 15, 4),
    Sketcher.Constraint("DistanceX", 0, 2, 0, 1, Q("6 mm")),
    Sketcher.Constraint("DistanceY", 1, 2, 1, 1, Q("6.7 mm")),
    Sketcher.Constraint("DistanceX", 0, 2, -1, 1, Q("56 mm")),
    Sketcher.Constraint("DistanceY", -1, 1, 1, 2, Q("75 mm")),
    Sketcher.Constraint("DistanceY", 4, 2, -1, 1, Q("57.5 mm")),
])
pad6 = doc.addObject("PartDesign::Pad", "Pad005")
body.addObject(pad6)
pad6.Profile = sketch16
pad6.Length = 5.5
pad6.Reversed = True

sketch17 = doc.addObject("Sketcher::SketchObject", "Sketch016")
body.addObject(sketch17)
sketch17.AttachmentSupport = (doc.XY_Plane, [""])
sketch17.MapMode = "FlatFace"
sketch17.AttachmentOffset = App.Placement(Vector(0, 0, 1.5), App.Rotation())
sketch17.addGeometry([
    Part.Circle(Vector(53, -54.5, 0), Vector(0, 0, 1), 1.65),
    Part.Circle(Vector(-53, -54.5, 0), Vector(0, 0, 1), 1.65),
    Part.Circle(Vector(-53, 78, 0), Vector(0, 0, 1), 1.65),
    Part.Circle(Vector(53, 78, 0), Vector(0, 0, 1), 1.65),
], False)
sketch17.addConstraint([
    Sketcher.Constraint("Equal", 0, 1),
    Sketcher.Constraint("Equal", 1, 2),
    Sketcher.Constraint("Equal", 2, 3),
    Sketcher.Constraint("Symmetric", 0, 3, 1, 3, -2),
    Sketcher.Constraint("Symmetric", 2, 3, 3, 3, -2),
    Sketcher.Constraint("Vertical", 1, 3, 2, 3),
    Sketcher.Constraint("Diameter", 0, Q("3.3 mm")),
    Sketcher.Constraint("DistanceX", -1, 1, 0, 3, Q("53 mm")),
    Sketcher.Constraint("DistanceY", -1, 1, 2, 3, Q("78 mm")),
    Sketcher.Constraint("DistanceY", 0, 3, -1, 1, Q("54.5 mm")),
])
pocket11 = doc.addObject("PartDesign::Pocket", "Pocket010")
body.addObject(pocket11)
pocket11.Profile = sketch17
pocket11.Type = "ThroughAll"
pocket11.Reversed = True

sketch18 = doc.addObject("Sketcher::SketchObject", "Sketch017")
body.addObject(sketch18)
sketch18.AttachmentSupport = (doc.XY_Plane, [""])
sketch18.MapMode = "FlatFace"
sketch18.AttachmentOffset = App.Placement(Vector(0, 0, 1.5), App.Rotation())
sketch18.addGeometry([
    Part.Circle(Vector(-45, 87, 0), Vector(0, 0, 1), 1.1),
    Part.Circle(Vector(45, 87, 0), Vector(0, 0, 1), 1.1),
], False)
sketch18.addConstraint([
    Sketcher.Constraint("Equal", 0, 1),
    Sketcher.Constraint("Symmetric", 0, 3, 1, 3, -2),
    Sketcher.Constraint("Diameter", 0, Q("2.2 mm")),
    Sketcher.Constraint("DistanceX", 0, 3, -1, 1, Q("45 mm")),
    Sketcher.Constraint("DistanceY", -1, 1, 0, 3, Q("87 mm")),
])
pocket12 = doc.addObject("PartDesign::Pocket", "Pocket011")
body.addObject(pocket12)
pocket12.Profile = sketch18
pocket12.Type = "ThroughAll"
pocket12.Midplane = True
doc.recompute()

chamfer4 = doc.addObject("PartDesign::Chamfer", "Chamfer003")
body.addObject(chamfer4)
chamfer4.Base = (pocket12, edges_at(pocket12, [(-46.1, 87, 0), (43.9, 87, 0)]))
chamfer4.Size = 1.3

doc.recompute()
